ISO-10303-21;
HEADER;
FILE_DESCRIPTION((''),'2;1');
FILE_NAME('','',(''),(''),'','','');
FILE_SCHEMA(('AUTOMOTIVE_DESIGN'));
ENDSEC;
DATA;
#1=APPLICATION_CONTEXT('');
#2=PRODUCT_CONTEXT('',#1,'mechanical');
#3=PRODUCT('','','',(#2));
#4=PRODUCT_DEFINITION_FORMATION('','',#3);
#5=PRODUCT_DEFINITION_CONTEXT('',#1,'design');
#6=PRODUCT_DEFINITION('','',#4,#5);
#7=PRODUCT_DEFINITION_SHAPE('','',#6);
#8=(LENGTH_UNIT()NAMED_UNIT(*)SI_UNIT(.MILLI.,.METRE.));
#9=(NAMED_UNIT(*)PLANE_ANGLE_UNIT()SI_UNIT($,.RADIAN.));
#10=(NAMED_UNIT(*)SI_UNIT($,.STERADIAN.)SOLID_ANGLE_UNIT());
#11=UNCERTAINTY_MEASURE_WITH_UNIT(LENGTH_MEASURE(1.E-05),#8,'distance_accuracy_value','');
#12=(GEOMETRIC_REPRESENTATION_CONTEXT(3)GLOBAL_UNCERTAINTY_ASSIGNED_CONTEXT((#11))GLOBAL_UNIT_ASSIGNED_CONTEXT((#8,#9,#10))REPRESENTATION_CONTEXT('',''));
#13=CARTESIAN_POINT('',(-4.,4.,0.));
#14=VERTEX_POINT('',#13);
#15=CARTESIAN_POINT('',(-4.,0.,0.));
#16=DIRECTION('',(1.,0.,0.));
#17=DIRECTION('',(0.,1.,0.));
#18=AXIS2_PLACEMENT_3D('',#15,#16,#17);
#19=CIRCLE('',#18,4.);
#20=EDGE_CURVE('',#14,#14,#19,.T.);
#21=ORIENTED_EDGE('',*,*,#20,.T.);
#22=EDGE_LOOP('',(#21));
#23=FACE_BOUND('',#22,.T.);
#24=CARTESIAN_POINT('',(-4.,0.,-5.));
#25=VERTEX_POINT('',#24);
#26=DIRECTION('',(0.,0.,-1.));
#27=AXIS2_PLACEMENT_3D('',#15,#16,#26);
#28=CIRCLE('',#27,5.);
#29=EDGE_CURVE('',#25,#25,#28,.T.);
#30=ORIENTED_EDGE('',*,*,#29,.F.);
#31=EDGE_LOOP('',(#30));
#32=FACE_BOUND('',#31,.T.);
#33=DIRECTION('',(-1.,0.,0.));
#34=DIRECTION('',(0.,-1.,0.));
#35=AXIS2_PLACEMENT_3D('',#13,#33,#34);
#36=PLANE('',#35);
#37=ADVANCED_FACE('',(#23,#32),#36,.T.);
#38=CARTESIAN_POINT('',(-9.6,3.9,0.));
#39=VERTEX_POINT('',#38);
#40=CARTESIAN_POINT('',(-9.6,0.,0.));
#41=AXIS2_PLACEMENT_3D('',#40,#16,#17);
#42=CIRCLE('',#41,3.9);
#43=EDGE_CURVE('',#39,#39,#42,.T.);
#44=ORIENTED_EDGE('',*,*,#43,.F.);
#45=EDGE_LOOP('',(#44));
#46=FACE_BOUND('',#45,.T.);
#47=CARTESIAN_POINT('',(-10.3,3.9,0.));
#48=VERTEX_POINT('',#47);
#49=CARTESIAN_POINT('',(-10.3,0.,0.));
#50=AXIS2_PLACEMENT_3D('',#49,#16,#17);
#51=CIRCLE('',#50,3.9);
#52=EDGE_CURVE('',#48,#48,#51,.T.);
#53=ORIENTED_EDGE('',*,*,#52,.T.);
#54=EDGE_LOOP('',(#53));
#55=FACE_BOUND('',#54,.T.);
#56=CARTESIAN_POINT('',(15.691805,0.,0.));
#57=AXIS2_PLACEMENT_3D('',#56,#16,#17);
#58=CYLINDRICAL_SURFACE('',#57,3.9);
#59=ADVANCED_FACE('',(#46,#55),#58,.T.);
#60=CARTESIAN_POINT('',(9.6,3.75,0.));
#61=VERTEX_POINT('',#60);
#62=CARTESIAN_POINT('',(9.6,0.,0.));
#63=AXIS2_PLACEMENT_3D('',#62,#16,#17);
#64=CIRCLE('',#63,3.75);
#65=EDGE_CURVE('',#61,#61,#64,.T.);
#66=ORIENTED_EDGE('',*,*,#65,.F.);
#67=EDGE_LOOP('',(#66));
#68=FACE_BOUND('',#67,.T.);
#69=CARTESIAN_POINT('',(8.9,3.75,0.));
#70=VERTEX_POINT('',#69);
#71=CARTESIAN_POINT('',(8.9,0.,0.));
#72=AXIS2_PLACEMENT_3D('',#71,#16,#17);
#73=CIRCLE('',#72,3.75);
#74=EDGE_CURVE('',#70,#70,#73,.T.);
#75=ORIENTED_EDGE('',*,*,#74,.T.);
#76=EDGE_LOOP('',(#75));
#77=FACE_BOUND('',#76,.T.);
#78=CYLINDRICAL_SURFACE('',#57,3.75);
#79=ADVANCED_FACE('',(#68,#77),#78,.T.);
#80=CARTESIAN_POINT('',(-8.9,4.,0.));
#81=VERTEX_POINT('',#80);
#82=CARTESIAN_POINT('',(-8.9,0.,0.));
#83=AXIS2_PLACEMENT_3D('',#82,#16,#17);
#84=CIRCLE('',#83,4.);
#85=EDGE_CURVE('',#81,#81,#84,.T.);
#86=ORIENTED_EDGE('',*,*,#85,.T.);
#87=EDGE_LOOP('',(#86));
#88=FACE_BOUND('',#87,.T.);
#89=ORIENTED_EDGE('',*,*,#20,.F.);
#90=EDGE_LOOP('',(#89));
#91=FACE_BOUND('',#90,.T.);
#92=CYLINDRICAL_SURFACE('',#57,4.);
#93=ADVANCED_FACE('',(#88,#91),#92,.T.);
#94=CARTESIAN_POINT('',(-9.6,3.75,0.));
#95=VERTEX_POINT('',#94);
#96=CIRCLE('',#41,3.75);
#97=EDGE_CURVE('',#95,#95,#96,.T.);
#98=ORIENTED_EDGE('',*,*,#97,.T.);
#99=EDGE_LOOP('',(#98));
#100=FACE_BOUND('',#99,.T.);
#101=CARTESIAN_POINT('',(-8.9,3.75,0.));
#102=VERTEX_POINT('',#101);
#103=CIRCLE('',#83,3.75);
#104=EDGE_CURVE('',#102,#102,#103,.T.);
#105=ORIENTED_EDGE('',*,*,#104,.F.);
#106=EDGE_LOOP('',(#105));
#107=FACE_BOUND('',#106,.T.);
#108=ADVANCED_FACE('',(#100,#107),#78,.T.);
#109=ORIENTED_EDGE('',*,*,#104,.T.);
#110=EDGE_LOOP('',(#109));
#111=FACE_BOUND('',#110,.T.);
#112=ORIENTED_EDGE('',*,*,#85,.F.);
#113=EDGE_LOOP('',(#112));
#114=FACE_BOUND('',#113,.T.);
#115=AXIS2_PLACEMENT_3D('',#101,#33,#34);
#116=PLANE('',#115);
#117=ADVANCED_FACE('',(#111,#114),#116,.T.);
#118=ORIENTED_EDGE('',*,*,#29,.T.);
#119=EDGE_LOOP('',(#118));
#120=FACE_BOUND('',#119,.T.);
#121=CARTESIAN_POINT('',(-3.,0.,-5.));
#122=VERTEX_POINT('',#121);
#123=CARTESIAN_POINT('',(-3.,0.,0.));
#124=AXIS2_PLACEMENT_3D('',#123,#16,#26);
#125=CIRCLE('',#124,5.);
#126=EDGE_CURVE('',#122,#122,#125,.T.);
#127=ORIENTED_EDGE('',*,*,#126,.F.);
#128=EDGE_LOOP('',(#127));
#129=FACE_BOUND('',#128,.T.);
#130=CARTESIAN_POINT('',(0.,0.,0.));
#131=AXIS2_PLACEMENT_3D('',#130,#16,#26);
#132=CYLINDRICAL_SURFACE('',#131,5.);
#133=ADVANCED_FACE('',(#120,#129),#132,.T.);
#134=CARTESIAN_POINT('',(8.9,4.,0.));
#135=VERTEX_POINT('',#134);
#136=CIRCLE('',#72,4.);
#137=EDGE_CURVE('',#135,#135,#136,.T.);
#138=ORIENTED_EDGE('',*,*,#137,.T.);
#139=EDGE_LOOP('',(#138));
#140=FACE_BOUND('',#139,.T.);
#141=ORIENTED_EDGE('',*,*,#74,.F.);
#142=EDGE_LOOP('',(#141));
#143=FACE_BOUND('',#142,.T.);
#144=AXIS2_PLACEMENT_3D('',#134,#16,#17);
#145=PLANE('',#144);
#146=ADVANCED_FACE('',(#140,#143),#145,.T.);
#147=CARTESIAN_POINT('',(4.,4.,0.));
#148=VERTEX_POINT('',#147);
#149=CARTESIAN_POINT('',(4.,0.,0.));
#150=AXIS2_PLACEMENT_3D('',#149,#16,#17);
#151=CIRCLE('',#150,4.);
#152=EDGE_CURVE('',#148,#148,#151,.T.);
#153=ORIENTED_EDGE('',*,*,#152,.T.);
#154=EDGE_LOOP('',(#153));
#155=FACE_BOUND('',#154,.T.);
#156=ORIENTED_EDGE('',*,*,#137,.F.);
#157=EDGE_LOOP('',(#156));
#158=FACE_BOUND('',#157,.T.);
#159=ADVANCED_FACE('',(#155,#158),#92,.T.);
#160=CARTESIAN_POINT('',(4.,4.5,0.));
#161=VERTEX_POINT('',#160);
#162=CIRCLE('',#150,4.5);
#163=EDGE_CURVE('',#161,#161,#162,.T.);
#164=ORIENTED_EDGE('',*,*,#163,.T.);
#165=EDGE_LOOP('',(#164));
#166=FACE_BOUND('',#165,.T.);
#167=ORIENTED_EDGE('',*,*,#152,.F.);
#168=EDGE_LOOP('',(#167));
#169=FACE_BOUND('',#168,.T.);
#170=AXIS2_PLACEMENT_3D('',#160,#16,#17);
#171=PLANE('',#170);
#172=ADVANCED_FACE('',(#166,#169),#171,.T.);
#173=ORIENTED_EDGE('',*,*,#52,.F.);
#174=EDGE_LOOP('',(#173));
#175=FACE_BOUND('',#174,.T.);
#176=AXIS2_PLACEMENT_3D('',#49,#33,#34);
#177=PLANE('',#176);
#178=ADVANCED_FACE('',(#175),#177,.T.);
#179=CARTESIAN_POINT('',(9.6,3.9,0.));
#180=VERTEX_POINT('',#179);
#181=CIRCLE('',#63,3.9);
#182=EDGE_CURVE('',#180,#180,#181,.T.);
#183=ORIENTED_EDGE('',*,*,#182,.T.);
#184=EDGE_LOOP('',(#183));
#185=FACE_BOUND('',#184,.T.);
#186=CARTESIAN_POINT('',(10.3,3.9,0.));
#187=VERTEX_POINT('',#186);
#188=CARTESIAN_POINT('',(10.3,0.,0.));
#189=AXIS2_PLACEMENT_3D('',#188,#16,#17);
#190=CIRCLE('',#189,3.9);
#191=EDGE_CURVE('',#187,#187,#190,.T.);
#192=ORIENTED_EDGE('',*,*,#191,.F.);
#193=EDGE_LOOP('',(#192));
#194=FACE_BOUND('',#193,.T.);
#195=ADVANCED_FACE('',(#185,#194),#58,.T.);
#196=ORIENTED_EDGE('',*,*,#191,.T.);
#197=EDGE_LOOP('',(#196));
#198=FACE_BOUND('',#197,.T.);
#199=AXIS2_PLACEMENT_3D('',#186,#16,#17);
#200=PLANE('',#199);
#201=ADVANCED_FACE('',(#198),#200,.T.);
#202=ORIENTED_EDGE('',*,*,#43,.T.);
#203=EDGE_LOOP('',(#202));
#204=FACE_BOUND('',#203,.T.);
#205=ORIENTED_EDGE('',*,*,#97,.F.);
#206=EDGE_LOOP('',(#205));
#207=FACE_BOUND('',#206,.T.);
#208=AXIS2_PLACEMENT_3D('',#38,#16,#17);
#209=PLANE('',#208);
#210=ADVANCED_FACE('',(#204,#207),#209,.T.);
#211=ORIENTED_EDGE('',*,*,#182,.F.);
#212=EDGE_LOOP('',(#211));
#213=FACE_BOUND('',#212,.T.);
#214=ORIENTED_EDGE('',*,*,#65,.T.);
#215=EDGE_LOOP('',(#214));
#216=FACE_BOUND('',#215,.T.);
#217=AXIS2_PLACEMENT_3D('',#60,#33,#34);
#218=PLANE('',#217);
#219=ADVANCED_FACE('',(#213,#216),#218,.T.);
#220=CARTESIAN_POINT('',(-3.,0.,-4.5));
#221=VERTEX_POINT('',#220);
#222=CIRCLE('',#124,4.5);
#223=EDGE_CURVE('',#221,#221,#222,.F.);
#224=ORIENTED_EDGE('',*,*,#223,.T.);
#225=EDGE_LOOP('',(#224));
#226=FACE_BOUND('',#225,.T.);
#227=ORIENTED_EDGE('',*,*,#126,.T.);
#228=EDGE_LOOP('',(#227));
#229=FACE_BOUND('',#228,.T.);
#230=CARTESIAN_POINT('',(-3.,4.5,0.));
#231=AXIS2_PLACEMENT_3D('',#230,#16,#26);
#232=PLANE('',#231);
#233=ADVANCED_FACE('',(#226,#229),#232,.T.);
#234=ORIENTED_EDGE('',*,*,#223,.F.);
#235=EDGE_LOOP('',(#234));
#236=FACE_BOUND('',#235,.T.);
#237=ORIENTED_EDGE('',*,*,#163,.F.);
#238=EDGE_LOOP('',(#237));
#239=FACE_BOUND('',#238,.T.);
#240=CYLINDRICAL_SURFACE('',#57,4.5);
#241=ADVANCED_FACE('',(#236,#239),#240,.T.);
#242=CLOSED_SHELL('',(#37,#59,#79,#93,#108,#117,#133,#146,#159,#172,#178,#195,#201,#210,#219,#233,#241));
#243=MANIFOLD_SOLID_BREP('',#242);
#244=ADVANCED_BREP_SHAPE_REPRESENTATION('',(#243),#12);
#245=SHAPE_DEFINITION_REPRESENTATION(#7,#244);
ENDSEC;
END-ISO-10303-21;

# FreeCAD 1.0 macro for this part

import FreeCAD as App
import Part
import Sketcher

V = App.Vector
Q = App.Units.Quantity


def add_polygon(sketch, points):
    """Adds a closed chain of lines whose ends are joined by coincident constraints."""
    first, n = sketch.GeometryCount, len(points)
    for a, b in zip(points, points[1:] + points[:1]):
        sketch.addGeometry(Part.LineSegment(App.Vector(*a, 0), App.Vector(*b, 0)), False)
    for i in range(n):
        sketch.addConstraint(Sketcher.Constraint("Coincident", first + i, 2, first + (i + 1) % n, 1))

doc = App.newDocument("Part")
body = doc.addObject("PartDesign::Body", "Body")

# Sketch on XY plane
sketch1 = body.newObject("Sketcher::SketchObject", "Sketch")
sketch1.AttachmentSupport = (doc.getObject("XY_Plane"), [""])
sketch1.MapMode = "FlatFace"
add_polygon(sketch1, [(-10.3, 0), (10.3, 0), (10.3, 3.9), (9.6, 3.9), (9.6, 3.75), (8.9, 3.75), (8.9, 4), (4, 4), (4, 4.5), (-4, 4.5), (-4, 4), (-8.9, 4), (-8.9, 3.75), (-9.6, 3.75), (-9.6, 3.9), (-10.3, 3.9)])  # lines 0-15
sketch1.addConstraint([
    Sketcher.Constraint("Horizontal", 0),
    Sketcher.Constraint("Vertical", 1),
    Sketcher.Constraint("Horizontal", 2),
    Sketcher.Constraint("Vertical", 3),
    Sketcher.Constraint("Horizontal", 4),
    Sketcher.Constraint("Vertical", 5),
    Sketcher.Constraint("Horizontal", 6),
    Sketcher.Constraint("Vertical", 7),
    Sketcher.Constraint("Horizontal", 8),
    Sketcher.Constraint("Vertical", 9),
    Sketcher.Constraint("Horizontal", 10),
    Sketcher.Constraint("Vertical", 11),
    Sketcher.Constraint("Horizontal", 12),
    Sketcher.Constraint("Vertical", 13),
    Sketcher.Constraint("Horizontal", 14),
    Sketcher.Constraint("Vertical", 15),
    Sketcher.Constraint("Symmetric", 0, 2, 15, 2, -1, 1),
    Sketcher.Constraint("Symmetric", 6, 2, 9, 2, -2),
    Sketcher.Constraint("Symmetric", 4, 2, 11, 2, -2),
    Sketcher.Constraint("Symmetric", 2, 2, 13, 2, -2),
    Sketcher.Constraint("Equal", 2, 4),
    Sketcher.Constraint("DistanceX", 8, 2, 8, 1, Q("8 mm")),
    Sketcher.Constraint("DistanceX", 0, 1, 0, 2, Q("20.6 mm")),
    Sketcher.Constraint("DistanceX", 2, 2, 2, 1, Q("0.7 mm")),
    Sketcher.Constraint("DistanceY", 1, 1, 1, 2, Q("3.9 mm")),
    Sketcher.Constraint("DistanceY", 7, 1, 7, 2, Q("0.5 mm")),
    Sketcher.Constraint("DistanceY", -1, 1, 5, 2, Q("4 mm")),
    Sketcher.Constraint("DistanceY", 3, 2, 3, 1, Q("0.15 mm")),
])
revolution = body.newObject("PartDesign::Revolution", "Revolution")
revolution.Profile = sketch1
revolution.ReferenceAxis = (sketch1, ["H_Axis"])
revolution.Angle = 360

# Sketch on XY plane
sketch2 = body.newObject("Sketcher::SketchObject", "Sketch001")
sketch2.AttachmentSupport = (doc.getObject("XY_Plane"), [""])
sketch2.MapMode = "FlatFace"
add_polygon(sketch2, [(-4, 5), (-4, 4.5), (-3, 4.5), (-3, 5)])  # lines 0-3
sketch2.addConstraint([
    Sketcher.Constraint("Vertical", 0),
    Sketcher.Constraint("Horizontal", 1),
    Sketcher.Constraint("Vertical", 2),
    Sketcher.Constraint("Horizontal", 3),
    Sketcher.Constraint("DistanceX", 1, 1, 1, 2, Q("1 mm")),
    Sketcher.Constraint("DistanceY", 0, 2, 0, 1, Q("0.5 mm")),
    Sketcher.Constraint("DistanceX", 0, 2, -1, 1, Q("4 mm")),
    Sketcher.Constraint("DistanceY", -1, 1, 2, 2, Q("5 mm")),
])
revolution2 = body.newObject("PartDesign::Revolution", "Revolution001")
revolution2.Profile = sketch2
revolution2.ReferenceAxis = (sketch2, ["H_Axis"])
revolution2.Angle = 360

doc.recompute()
